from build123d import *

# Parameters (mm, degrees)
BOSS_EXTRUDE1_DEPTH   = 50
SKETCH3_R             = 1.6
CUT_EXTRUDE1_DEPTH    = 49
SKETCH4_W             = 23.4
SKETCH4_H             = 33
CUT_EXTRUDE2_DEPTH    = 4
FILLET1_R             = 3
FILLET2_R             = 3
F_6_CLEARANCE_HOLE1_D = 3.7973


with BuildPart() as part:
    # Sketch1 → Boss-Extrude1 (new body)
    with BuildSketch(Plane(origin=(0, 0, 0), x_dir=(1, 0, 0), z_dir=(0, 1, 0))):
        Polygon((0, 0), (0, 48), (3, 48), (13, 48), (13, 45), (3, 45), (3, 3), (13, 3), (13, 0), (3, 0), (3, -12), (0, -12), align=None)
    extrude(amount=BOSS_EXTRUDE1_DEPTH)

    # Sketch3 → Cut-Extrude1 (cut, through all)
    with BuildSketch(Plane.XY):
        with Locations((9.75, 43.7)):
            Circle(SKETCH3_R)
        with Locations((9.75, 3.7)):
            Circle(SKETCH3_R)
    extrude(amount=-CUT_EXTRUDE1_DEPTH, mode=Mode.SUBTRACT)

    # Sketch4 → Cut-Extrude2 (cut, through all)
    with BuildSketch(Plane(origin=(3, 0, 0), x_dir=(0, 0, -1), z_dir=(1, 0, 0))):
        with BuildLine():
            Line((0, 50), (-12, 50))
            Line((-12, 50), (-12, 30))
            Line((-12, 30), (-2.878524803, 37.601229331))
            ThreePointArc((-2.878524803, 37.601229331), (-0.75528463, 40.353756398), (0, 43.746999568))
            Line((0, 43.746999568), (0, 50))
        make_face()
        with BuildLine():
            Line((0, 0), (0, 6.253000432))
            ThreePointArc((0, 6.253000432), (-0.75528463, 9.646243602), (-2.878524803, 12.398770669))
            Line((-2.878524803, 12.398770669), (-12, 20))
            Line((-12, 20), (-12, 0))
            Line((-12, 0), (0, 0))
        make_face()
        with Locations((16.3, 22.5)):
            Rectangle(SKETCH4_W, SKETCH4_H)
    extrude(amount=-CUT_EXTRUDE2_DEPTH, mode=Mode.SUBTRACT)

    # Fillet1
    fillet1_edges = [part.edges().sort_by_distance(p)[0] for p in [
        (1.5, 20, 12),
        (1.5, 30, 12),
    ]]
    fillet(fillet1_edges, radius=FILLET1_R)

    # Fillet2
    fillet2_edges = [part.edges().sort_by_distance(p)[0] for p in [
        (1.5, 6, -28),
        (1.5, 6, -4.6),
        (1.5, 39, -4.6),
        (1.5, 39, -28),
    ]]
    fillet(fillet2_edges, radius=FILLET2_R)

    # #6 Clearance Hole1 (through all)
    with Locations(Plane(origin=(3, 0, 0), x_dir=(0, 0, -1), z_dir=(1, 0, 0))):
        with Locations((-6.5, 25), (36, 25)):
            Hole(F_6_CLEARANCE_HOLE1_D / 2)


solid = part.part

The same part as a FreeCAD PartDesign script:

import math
import FreeCAD as App
import Part
import Sketcher

V = App.Vector
Q = App.Units.Quantity


def edges_at(feature, points):
    """Names of the edges that pass closest to the given points."""
    edges = feature.Shape.Edges
    near = lambda p: min(range(len(edges)), key=lambda i: edges[i].distToShape(Part.Vertex(*p))[0])
    return sorted({f"Edge{near(p) + 1}" for p in points})


def add_polygon(sketch, points):
    """Adds a closed chain of lines whose ends are joined by coincident constraints."""
    first, n = sketch.GeometryCount, len(points)
    for a, b in zip(points, points[1:] + points[:1]):
        sketch.addGeometry(Part.LineSegment(App.Vector(*a, 0), App.Vector(*b, 0)), False)
    for i in range(n):
        sketch.addConstraint(Sketcher.Constraint("Coincident", first + i, 2, first + (i + 1) % n, 1))

doc = App.newDocument("Part")
body = doc.addObject("PartDesign::Body", "Body")

# Sketch on XZ plane
sketch1 = doc.addObject("Sketcher::SketchObject", "Sketch")
body.addObject(sketch1)
sketch1.AttachmentSupport = (doc.XZ_Plane, [""])
sketch1.MapMode = "FlatFace"
add_polygon(sketch1, [(0, -48), (0, 12), (3, 12), (3, 0), (13, 0), (13, -3), (3, -3), (3, -45), (13, -45), (13, -48)])  # lines 0-9
sketch1.addConstraint([
    Sketcher.Constraint("Vertical", 0),
    Sketcher.Constraint("Horizontal", 1),
    Sketcher.Constraint("Vertical", 2),
    Sketcher.Constraint("Horizontal", 3),
    Sketcher.Constraint("Vertical", 4),
    Sketcher.Constraint("Horizontal", 5),
    Sketcher.Constraint("Vertical", 6),
    Sketcher.Constraint("Horizontal", 7),
    Sketcher.Constraint("Vertical", 8),
    Sketcher.Constraint("Horizontal", 9),
    Sketcher.Constraint("PointOnObject", 0, 2, -2),
    Sketcher.Constraint("PointOnObject", 2, 2, -1),
    Sketcher.Constraint("Vertical", 2, 2, 5, 2),
    Sketcher.Constraint("Vertical", 4, 2, 7, 2),
    Sketcher.Constraint("Equal", 1, 4),
    Sketcher.Constraint("Equal", 4, 8),
    Sketcher.Constraint("DistanceX", 1, 1, 1, 2, Q("3 mm")),
    Sketcher.Constraint("DistanceX", 3, 1, 3, 2, Q("10 mm")),
    Sketcher.Constraint("DistanceY", 0, 1, 0, 2, Q("60 mm")),
    Sketcher.Constraint("DistanceY", 2, 2, 2, 1, Q("12 mm")),
])
pad1 = doc.addObject("PartDesign::Pad", "Pad")
body.addObject(pad1)
pad1.Profile = sketch1
pad1.Length = 50
pad1.Reversed = True

# Sketch on XY plane
sketch2 = doc.addObject("Sketcher::SketchObject", "Sketch001")
body.addObject(sketch2)
sketch2.AttachmentSupport = (doc.XY_Plane, [""])
sketch2.MapMode = "FlatFace"
sketch2.addGeometry([
    Part.Circle(V(9.75, 43.7, 0), V(0, 0, 1), 1.6),
    Part.Circle(V(9.75, 3.7, 0), V(0, 0, 1), 1.6),
], False)
sketch2.addConstraint([
    Sketcher.Constraint("Equal", 0, 1),
    Sketcher.Constraint("Vertical", 0, 3, 1, 3),
    Sketcher.Constraint("Diameter", 0, Q("3.2 mm")),
    Sketcher.Constraint("DistanceY", 1, 3, 0, 3, Q("40 mm")),
    Sketcher.Constraint("DistanceY", -1, 1, 0, 3, Q("43.7 mm")),
    Sketcher.Constraint("DistanceX", -1, 1, 0, 3, Q("9.75 mm")),
])
pocket1 = doc.addObject("PartDesign::Pocket", "Pocket")
body.addObject(pocket1)
pocket1.Profile = sketch2
pocket1.Type = "ThroughAll"

# Sketch on YZ plane
sketch3 = doc.addObject("Sketcher::SketchObject", "Sketch002")
body.addObject(sketch3)
sketch3.AttachmentSupport = (doc.YZ_Plane, [""])
sketch3.MapMode = "FlatFace"
sketch3.AttachmentOffset = App.Placement(V(0, 0, 3), App.Rotation())
sketch3.addGeometry(Part.LineSegment(V(50, 0, 0), V(50, 12, 0)), False)  # 0
sketch3.addGeometry(Part.LineSegment(V(50, 12, 0), V(30, 12, 0)), False)  # 1
sketch3.addGeometry(Part.LineSegment(V(30, 12, 0), V(37.601229, 2.878525, 0)), False)  # 2
sketch3.addGeometry(Part.ArcOfCircle(Part.Circle(V(43.747, 8, 0), V(0, 0, 1), 8), math.radians(-140.194429), math.radians(-90)), False)  # 3
sketch3.addGeometry(Part.LineSegment(V(43.747, 0, 0), V(50, 0, 0)), False)  # 4
sketch3.addGeometry(Part.LineSegment(V(0, 0, 0), V(6.253, 0, 0)), False)  # 5
sketch3.addGeometry(Part.ArcOfCircle(Part.Circle(V(6.253, 8, 0), V(0, 0, 1), 8), math.radians(-90), math.radians(-39.805571)), False)  # 6
sketch3.addGeometry(Part.LineSegment(V(12.398771, 2.878525, 0), V(20, 12, 0)), False)  # 7
sketch3.addGeometry(Part.LineSegment(V(20, 12, 0), V(0, 12, 0)), False)  # 8
sketch3.addGeometry(Part.LineSegment(V(0, 12, 0), V(0, 0, 0)), False)  # 9
add_polygon(sketch3, [(39, -4.6), (6, -4.6), (6, -28), (39, -28)])  # lines 10-13
sketch3.addConstraint([
    Sketcher.Constraint("Coincident", 0, 2, 1, 1),
    Sketcher.Constraint("Coincident", 1, 2, 2, 1),
    Sketcher.Constraint("Tangent", 2, 2, 3, 1),
    Sketcher.Constraint("Tangent", 3, 2, 4, 1),
    Sketcher.Constraint("Coincident", 4, 2, 0, 1),
    Sketcher.Constraint("Tangent", 5, 2, 6, 1),
    Sketcher.Constraint("Tangent", 6, 2, 7, 1),
    Sketcher.Constraint("Coincident", 7, 2, 8, 1),
    Sketcher.Constraint("Coincident", 8, 2, 9, 1),
    Sketcher.Constraint("Coincident", 9, 2, 5, 1),
    Sketcher.Constraint("Vertical", 0),
    Sketcher.Constraint("Horizontal", 1),
    Sketcher.Constraint("Horizontal", 4),
    Sketcher.Constraint("Horizontal", 5),
    Sketcher.Constraint("Horizontal", 8),
    Sketcher.Constraint("Vertical", 9),
    Sketcher.Constraint("Horizontal", 10),
    Sketcher.Constraint("Vertical", 11),
    Sketcher.Constraint("Horizontal", 12),
    Sketcher.Constraint("Vertical", 13),
    Sketcher.Constraint("Coincident", 9, 2, -1, 1),
    Sketcher.Constraint("Equal", 3, 6),
    Sketcher.Constraint("PointOnObject", 3, 2, -1),
    Sketcher.Constraint("Horizontal", 2, 2, 6, 2),
    Sketcher.Constraint("Horizontal", 1, 2, 7, 2),
    Sketcher.Constraint("Equal", 4, 5),
    Sketcher.Constraint("Radius", 3, Q("8 mm")),
    Sketcher.Constraint("DistanceX", 1, 2, 1, 1, Q("20 mm")),
    Sketcher.Constraint("DistanceX", 10, 2, 10, 1, Q("33 mm")),
    Sketcher.Constraint("DistanceY", 0, 1, 0, 2, Q("12 mm")),
    Sketcher.Constraint("DistanceY", 11, 2, 11, 1, Q("23.4 mm")),
    Sketcher.Constraint("DistanceX", -1, 1, 0, 2, Q("50 mm")),
    Sketcher.Constraint("DistanceX", -1, 1, 10, 2, Q("6 mm")),
    Sketcher.Constraint("DistanceY", 11, 2, -1, 1, Q("28 mm")),
    Sketcher.Constraint("DistanceX", 4, 1, 4, 2, Q("6.253 mm")),
])
pocket2 = doc.addObject("PartDesign::Pocket", "Pocket001")
body.addObject(pocket2)
pocket2.Profile = sketch3
pocket2.Type = "ThroughAll"
doc.recompute()

fillet = doc.addObject("PartDesign::Fillet", "Fillet")
body.addObject(fillet)
fillet.Base = (pocket2, edges_at(pocket2, [(1.5, 20, 12), (1.5, 30, 12)]))
fillet.Radius = 3
doc.recompute()

fillet2 = doc.addObject("PartDesign::Fillet", "Fillet001")
body.addObject(fillet2)
fillet2.Base = (fillet, edges_at(fillet, [
    (1.5, 6, -28),
    (1.5, 6, -4.6),
    (1.5, 39, -4.6),
    (1.5, 39, -28),
]))
fillet2.Radius = 3

# Sketch on YZ plane
sketch4 = doc.addObject("Sketcher::SketchObject", "Sketch003")
body.addObject(sketch4)
sketch4.AttachmentSupport = (doc.YZ_Plane, [""])
sketch4.MapMode = "FlatFace"
sketch4.AttachmentOffset = App.Placement(V(0, 0, 3), App.Rotation())
sketch4.addGeometry([
    Part.Circle(V(25, 6.5, 0), V(0, 0, 1), 1.89865),
    Part.Circle(V(25, -36, 0), V(0, 0, 1), 1.89865),
], False)
sketch4.addConstraint([
    Sketcher.Constraint("Equal", 0, 1),
    Sketcher.Constraint("Vertical", 0, 3, 1, 3),
    Sketcher.Constraint("DistanceX", -1, 1, 0, 3, Q("25 mm")),
    Sketcher.Constraint("DistanceY", 1, 3, -1, 1, Q("36 mm")),
    Sketcher.Constraint("Diameter", 0, Q("3.7973 mm")),
    Sketcher.Constraint("DistanceY", -1, 1, 0, 3, Q("6.5 mm")),
])
doc.recompute()
hole = doc.addObject("PartDesign::Hole", "Hole")
body.addObject(hole)
hole.Profile = sketch4
hole.ThreadType = "None"
hole.Diameter = 3.7973
hole.DepthType = "ThroughAll"

doc.recompute()
